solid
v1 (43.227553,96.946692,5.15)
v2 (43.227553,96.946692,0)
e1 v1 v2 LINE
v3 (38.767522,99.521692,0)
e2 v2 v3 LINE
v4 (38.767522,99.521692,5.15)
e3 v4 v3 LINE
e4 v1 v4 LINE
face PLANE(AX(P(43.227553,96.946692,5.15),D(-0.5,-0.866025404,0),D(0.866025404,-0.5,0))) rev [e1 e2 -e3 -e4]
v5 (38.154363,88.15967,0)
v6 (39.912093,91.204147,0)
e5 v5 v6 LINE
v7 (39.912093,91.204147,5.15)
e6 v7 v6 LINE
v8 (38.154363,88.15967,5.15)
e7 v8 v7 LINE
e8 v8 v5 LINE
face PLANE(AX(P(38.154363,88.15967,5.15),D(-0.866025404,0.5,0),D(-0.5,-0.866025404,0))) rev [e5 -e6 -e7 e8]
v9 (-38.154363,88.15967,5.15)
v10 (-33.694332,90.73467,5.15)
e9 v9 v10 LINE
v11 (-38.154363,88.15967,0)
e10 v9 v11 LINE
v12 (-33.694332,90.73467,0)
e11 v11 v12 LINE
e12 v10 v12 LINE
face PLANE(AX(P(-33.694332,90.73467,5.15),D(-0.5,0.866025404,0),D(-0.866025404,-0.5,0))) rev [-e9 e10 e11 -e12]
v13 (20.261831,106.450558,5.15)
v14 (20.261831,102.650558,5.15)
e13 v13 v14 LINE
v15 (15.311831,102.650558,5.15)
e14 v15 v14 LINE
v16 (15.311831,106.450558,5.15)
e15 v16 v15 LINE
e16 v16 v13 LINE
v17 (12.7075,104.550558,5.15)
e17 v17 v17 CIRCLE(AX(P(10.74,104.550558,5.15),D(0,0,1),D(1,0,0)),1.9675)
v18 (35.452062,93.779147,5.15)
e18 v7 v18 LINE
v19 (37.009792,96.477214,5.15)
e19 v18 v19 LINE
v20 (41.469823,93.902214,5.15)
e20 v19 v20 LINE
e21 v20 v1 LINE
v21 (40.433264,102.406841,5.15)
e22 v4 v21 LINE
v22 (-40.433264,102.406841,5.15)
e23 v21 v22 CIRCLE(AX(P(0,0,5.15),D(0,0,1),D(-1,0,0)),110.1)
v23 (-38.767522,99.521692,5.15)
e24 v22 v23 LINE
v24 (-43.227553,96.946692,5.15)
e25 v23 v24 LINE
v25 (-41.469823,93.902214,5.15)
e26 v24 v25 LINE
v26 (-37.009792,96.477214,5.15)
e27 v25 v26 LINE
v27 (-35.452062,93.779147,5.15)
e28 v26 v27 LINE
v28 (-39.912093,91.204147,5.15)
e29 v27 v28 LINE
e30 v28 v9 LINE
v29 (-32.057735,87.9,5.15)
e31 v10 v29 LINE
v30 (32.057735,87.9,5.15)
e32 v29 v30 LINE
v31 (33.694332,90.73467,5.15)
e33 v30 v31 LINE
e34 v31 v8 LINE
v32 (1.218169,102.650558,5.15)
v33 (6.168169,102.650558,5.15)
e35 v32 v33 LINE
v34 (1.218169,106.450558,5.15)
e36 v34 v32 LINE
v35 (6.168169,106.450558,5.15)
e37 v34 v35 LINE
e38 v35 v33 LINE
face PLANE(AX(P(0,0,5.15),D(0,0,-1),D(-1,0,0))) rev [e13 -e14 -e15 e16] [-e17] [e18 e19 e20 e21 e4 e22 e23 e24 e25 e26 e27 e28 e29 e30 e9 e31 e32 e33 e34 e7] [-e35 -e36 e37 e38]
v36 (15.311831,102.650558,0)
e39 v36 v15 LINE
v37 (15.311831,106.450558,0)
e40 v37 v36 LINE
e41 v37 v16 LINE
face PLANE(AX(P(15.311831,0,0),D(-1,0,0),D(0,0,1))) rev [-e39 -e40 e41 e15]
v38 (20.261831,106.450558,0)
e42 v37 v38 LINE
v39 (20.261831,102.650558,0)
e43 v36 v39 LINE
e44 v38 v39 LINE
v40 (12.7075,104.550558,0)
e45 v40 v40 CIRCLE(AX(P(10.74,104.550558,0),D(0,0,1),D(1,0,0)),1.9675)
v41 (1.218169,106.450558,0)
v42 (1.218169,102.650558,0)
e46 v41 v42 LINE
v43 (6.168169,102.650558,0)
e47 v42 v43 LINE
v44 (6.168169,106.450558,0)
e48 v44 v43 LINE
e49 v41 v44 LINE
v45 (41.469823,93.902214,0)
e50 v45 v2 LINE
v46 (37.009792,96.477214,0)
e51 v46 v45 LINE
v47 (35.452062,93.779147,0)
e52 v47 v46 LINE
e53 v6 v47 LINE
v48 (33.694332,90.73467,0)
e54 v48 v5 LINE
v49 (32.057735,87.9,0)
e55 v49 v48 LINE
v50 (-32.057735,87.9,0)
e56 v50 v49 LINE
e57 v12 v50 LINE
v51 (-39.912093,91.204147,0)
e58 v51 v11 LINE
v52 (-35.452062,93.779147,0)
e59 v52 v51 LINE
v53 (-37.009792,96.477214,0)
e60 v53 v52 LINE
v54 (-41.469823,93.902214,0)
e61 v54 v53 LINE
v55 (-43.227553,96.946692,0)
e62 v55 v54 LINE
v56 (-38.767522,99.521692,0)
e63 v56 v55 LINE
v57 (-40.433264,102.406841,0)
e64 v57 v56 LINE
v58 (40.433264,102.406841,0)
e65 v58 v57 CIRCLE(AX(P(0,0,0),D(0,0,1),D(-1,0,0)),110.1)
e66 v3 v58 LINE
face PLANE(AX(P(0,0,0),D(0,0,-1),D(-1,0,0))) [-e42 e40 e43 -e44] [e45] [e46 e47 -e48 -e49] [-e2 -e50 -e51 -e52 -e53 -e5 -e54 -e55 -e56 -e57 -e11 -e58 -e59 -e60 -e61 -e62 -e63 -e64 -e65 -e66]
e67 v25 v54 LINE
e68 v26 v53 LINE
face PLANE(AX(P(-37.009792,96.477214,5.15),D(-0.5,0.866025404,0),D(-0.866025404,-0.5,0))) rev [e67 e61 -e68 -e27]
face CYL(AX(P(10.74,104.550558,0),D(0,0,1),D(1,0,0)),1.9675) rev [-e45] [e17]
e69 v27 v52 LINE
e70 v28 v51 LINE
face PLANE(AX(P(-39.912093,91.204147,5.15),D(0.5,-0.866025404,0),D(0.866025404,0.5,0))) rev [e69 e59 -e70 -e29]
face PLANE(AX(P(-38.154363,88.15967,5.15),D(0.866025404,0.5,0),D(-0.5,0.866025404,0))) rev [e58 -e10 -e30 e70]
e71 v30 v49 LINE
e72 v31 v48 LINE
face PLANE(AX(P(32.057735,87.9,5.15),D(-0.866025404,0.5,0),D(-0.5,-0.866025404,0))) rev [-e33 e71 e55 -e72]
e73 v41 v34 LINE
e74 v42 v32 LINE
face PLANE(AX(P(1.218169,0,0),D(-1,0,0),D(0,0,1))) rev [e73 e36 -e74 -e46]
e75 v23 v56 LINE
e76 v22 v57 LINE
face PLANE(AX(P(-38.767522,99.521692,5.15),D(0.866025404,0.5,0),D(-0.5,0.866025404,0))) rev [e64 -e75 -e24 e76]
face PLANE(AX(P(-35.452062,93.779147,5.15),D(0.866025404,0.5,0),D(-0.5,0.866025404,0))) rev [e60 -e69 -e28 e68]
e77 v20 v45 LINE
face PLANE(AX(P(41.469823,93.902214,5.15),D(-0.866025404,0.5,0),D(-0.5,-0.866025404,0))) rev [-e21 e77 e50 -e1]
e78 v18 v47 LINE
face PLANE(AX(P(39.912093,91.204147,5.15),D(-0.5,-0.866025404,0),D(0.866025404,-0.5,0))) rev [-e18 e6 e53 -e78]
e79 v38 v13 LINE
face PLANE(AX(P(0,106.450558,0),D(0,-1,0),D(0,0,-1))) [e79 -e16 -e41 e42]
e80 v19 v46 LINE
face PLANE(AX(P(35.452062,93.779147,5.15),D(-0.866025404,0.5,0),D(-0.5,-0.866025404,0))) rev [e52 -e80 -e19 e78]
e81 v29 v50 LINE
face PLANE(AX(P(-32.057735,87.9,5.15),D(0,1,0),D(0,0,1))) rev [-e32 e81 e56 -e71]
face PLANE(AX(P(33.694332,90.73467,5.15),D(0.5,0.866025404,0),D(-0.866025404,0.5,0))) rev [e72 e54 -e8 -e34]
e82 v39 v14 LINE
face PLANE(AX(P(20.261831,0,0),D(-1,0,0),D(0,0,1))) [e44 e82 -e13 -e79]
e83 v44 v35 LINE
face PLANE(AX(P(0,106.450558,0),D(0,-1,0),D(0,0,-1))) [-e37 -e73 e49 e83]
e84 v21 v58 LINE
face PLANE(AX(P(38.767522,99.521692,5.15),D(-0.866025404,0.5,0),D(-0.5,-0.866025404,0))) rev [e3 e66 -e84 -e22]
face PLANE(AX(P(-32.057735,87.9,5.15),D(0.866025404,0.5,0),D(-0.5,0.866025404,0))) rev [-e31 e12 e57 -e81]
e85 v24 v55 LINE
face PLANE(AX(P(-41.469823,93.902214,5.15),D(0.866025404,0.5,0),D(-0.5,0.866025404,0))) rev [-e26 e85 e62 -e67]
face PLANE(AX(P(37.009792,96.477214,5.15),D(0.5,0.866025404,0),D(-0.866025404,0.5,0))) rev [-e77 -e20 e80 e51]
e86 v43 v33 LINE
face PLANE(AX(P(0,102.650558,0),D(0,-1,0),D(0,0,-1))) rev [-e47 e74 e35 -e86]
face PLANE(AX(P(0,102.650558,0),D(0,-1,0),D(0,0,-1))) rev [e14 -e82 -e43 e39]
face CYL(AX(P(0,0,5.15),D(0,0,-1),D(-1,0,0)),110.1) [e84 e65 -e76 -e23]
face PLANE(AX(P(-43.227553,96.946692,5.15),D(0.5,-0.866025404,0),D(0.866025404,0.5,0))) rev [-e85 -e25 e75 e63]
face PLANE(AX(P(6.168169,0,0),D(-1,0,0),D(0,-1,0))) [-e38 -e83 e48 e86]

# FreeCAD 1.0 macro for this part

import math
import FreeCAD as App
import Part
import Sketcher
Q = App.Units.Quantity


def add_polygon(sketch, points):
    """Adds a closed chain of lines whose ends are joined by coincident constraints."""
    first, n = sketch.GeometryCount, len(points)
    for a, b in zip(points, points[1:] + points[:1]):
        sketch.addGeometry(Part.LineSegment(App.Vector(*a, 0), App.Vector(*b, 0)), False)
    for i in range(n):
        sketch.addConstraint(Sketcher.Constraint("Coincident", first + i, 2, first + (i + 1) % n, 1))

doc = App.newDocument("Part")
body = doc.addObject("PartDesign::Body", "Body")

# Sketch on XY plane
sketch1 = body.newObject("Sketcher::SketchObject", "Sketch")
sketch1.AttachmentSupport = (doc.getObject("XY_Plane"), [""])
sketch1.MapMode = "FlatFace"
sketch1.addGeometry(Part.LineSegment(App.Vector(-32.1, 87.9, 0), App.Vector(32.1, 87.9, 0)), False)
sketch1.addGeometry(Part.LineSegment(App.Vector(32.1, 87.9, 0), App.Vector(33.7, 90.7, 0)), False)
sketch1.addGeometry(Part.LineSegment(App.Vector(33.7, 90.7, 0), App.Vector(38.2, 88.2, 0)), False)
sketch1.addGeometry(Part.LineSegment(App.Vector(38.2, 88.2, 0), App.Vector(39.9, 91.2, 0)), False)
sketch1.addGeometry(Part.LineSegment(App.Vector(39.9, 91.2, 0), App.Vector(35.5, 93.8, 0)), False)
sketch1.addGeometry(Part.LineSegment(App.Vector(35.5, 93.8, 0), App.Vector(37, 96.5, 0)), False)
sketch1.addGeometry(Part.LineSegment(App.Vector(37, 96.5, 0), App.Vector(41.5, 93.9, 0)), False)
sketch1.addGeometry(Part.LineSegment(App.Vector(41.5, 93.9, 0), App.Vector(43.2, 96.9, 0)), False)
sketch1.addGeometry(Part.LineSegment(App.Vector(43.2, 96.9, 0), App.Vector(38.8, 99.5, 0)), False)
sketch1.addGeometry(Part.LineSegment(App.Vector(38.8, 99.5, 0), App.Vector(40.4, 102.4, 0)), False)
sketch1.addGeometry(Part.ArcOfCircle(Part.Circle(App.Vector(0, 0, 0), App.Vector(0, 0, 1), 110.1), math.radians(68), math.radians(112)), False)
sketch1.addGeometry(Part.LineSegment(App.Vector(-40.4, 102.4, 0), App.Vector(-38.8, 99.5, 0)), False)
sketch1.addGeometry(Part.LineSegment(App.Vector(-38.8, 99.5, 0), App.Vector(-43.2, 96.9, 0)), False)
sketch1.addGeometry(Part.LineSegment(App.Vector(-43.2, 96.9, 0), App.Vector(-41.5, 93.9, 0)), False)
sketch1.addGeometry(Part.LineSegment(App.Vector(-41.5, 93.9, 0), App.Vector(-37, 96.5, 0)), False)
sketch1.addGeometry(Part.LineSegment(App.Vector(-37, 96.5, 0), App.Vector(-35.5, 93.8, 0)), False)
sketch1.addGeometry(Part.LineSegment(App.Vector(-35.5, 93.8, 0), App.Vector(-39.9, 91.2, 0)), False)
sketch1.addGeometry(Part.LineSegment(App.Vector(-39.9, 91.2, 0), App.Vector(-38.2, 88.2, 0)), False)
sketch1.addGeometry(Part.LineSegment(App.Vector(-38.2, 88.2, 0), App.Vector(-33.7, 90.7, 0)), False)
sketch1.addGeometry(Part.LineSegment(App.Vector(-33.7, 90.7, 0), App.Vector(-32.1, 87.9, 0)), False)
sketch1.addConstraint(Sketcher.Constraint("Coincident", 0, 2, 1, 1))
sketch1.addConstraint(Sketcher.Constraint("Coincident", 1, 2, 2, 1))
sketch1.addConstraint(Sketcher.Constraint("Coincident", 2, 2, 3, 1))
sketch1.addConstraint(Sketcher.Constraint("Coincident", 3, 2, 4, 1))
sketch1.addConstraint(Sketcher.Constraint("Coincident", 4, 2, 5, 1))
sketch1.addConstraint(Sketcher.Constraint("Coincident", 5, 2, 6, 1))
sketch1.addConstraint(Sketcher.Constraint("Coincident", 6, 2, 7, 1))
sketch1.addConstraint(Sketcher.Constraint("Coincident", 7, 2, 8, 1))
sketch1.addConstraint(Sketcher.Constraint("Coincident", 8, 2, 9, 1))
sketch1.addConstraint(Sketcher.Constraint("Coincident", 9, 2, 10, 1))
sketch1.addConstraint(Sketcher.Constraint("Coincident", 10, 2, 11, 1))
sketch1.addConstraint(Sketcher.Constraint("Coincident", 11, 2, 12, 1))
sketch1.addConstraint(Sketcher.Constraint("Coincident", 12, 2, 13, 1))
sketch1.addConstraint(Sketcher.Constraint("Coincident", 13, 2, 14, 1))
sketch1.addConstraint(Sketcher.Constraint("Coincident", 14, 2, 15, 1))
sketch1.addConstraint(Sketcher.Constraint("Coincident", 15, 2, 16, 1))
sketch1.addConstraint(Sketcher.Constraint("Coincident", 16, 2, 17, 1))
sketch1.addConstraint(Sketcher.Constraint("Coincident", 17, 2, 18, 1))
sketch1.addConstraint(Sketcher.Constraint("Coincident", 18, 2, 19, 1))
sketch1.addConstraint(Sketcher.Constraint("Coincident", 19, 2, 0, 1))
sketch1.addConstraint(Sketcher.Constraint("Horizontal", 0))
sketch1.addConstraint(Sketcher.Constraint("Coincident", 10, 3, -1, 1))
sketch1.addConstraint(Sketcher.Constraint("Symmetric", 8, 2, 11, 2, -2))
sketch1.addConstraint(Sketcher.Constraint("Symmetric", 7, 2, 12, 2, -2))
sketch1.addConstraint(Sketcher.Constraint("Symmetric", 6, 2, 13, 2, -2))
sketch1.addConstraint(Sketcher.Constraint("Symmetric", 5, 2, 14, 2, -2))
sketch1.addConstraint(Sketcher.Constraint("Symmetric", 4, 2, 15, 2, -2))
sketch1.addConstraint(Sketcher.Constraint("Symmetric", 3, 2, 16, 2, -2))
sketch1.addConstraint(Sketcher.Constraint("Symmetric", 2, 2, 17, 2, -2))
sketch1.addConstraint(Sketcher.Constraint("Symmetric", 1, 2, 18, 2, -2))
sketch1.addConstraint(Sketcher.Constraint("Perpendicular", 1, 2))
sketch1.addConstraint(Sketcher.Constraint("Perpendicular", 2, 3))
sketch1.addConstraint(Sketcher.Constraint("Perpendicular", 3, 4))
sketch1.addConstraint(Sketcher.Constraint("Perpendicular", 4, 5))
sketch1.addConstraint(Sketcher.Constraint("Perpendicular", 5, 6))
sketch1.addConstraint(Sketcher.Constraint("Perpendicular", 6, 7))
sketch1.addConstraint(Sketcher.Constraint("Perpendicular", 7, 8))
sketch1.addConstraint(Sketcher.Constraint("Perpendicular", 8, 9))
sketch1.addConstraint(Sketcher.Constraint("Perpendicular", 11, 12))
sketch1.addConstraint(Sketcher.Constraint("Perpendicular", 18, 19))
sketch1.addConstraint(Sketcher.Constraint("Equal", 2, 4))
sketch1.addConstraint(Sketcher.Constraint("Equal", 4, 6))
sketch1.addConstraint(Sketcher.Constraint("Equal", 3, 7))
sketch1.addConstraint(Sketcher.Constraint("Equal", 6, 8))
sketch1.addConstraint(Sketcher.Constraint("Radius", 10, Q("110.1 mm")))
sketch1.addConstraint(Sketcher.Constraint("Angle", 1, Q("60 deg")))
sketch1.addConstraint(Sketcher.Constraint("DistanceY", -1, 1, 0, 2, Q("87.9 mm")))
sketch1.addConstraint(Sketcher.Constraint("Distance", 2, Q("5.15 mm")))
sketch1.addConstraint(Sketcher.Constraint("DistanceX", 10, 2, 0, 2, Q("72.490999 mm")))
sketch1.addConstraint(Sketcher.Constraint("DistanceX", 4, 2, 2, 2, Q("2.702301 mm")))
sketch1.addConstraint(Sketcher.Constraint("DistanceX", 5, 2, 3, 2, Q("2.902301 mm")))
sketch1.addConstraint(Sketcher.Constraint("DistanceX", 4, 2, 9, 2, Q("4.981202 mm")))
pad1 = body.newObject("PartDesign::Pad", "Pad")
pad1.Profile = sketch1
pad1.Length = 5.15

# Sketch on XY plane
sketch2 = body.newObject("Sketcher::SketchObject", "Sketch001")
sketch2.AttachmentSupport = (doc.getObject("XY_Plane"), [""])
sketch2.MapMode = "FlatFace"
sketch2.AttachmentOffset = App.Placement(App.Vector(0, 0, 5.15), App.Rotation())
sketch2.addGeometry(Part.Circle(App.Vector(10.7, 104.6, 0), App.Vector(0, 0, 1), 2), False)  # 0
add_polygon(sketch2, [(15.3, 106.5), (15.3, 102.7), (20.3, 102.7), (20.3, 106.5)])  # lines 1-4
add_polygon(sketch2, [(1.2, 106.5), (1.2, 102.7), (6.2, 102.7), (6.2, 106.5)])  # lines 5-8
sketch2.addConstraint(Sketcher.Constraint("Vertical", 1))
sketch2.addConstraint(Sketcher.Constraint("Horizontal", 2))
sketch2.addConstraint(Sketcher.Constraint("Vertical", 3))
sketch2.addConstraint(Sketcher.Constraint("Horizontal", 4))
sketch2.addConstraint(Sketcher.Constraint("Vertical", 5))
sketch2.addConstraint(Sketcher.Constraint("Horizontal", 6))
sketch2.addConstraint(Sketcher.Constraint("Vertical", 7))
sketch2.addConstraint(Sketcher.Constraint("Horizontal", 8))
sketch2.addConstraint(Sketcher.Constraint("Horizontal", 2, 2, 5, 2))
sketch2.addConstraint(Sketcher.Constraint("Horizontal", 4, 2, 7, 2))
sketch2.addConstraint(Sketcher.Constraint("Equal", 4, 6))
sketch2.addConstraint(Sketcher.Constraint("Diameter", 0, Q("3.935 mm")))
sketch2.addConstraint(Sketcher.Constraint("DistanceY", 1, 2, 1, 1, Q("3.8 mm")))
sketch2.addConstraint(Sketcher.Constraint("DistanceX", 2, 1, 2, 2, Q("4.95 mm")))
sketch2.addConstraint(Sketcher.Constraint("DistanceY", 1, 2, 0, 3, Q("1.9 mm")))
sketch2.addConstraint(Sketcher.Constraint("DistanceX", -1, 1, 0, 3, Q("10.74 mm")))
sketch2.addConstraint(Sketcher.Constraint("DistanceY", -1, 1, 0, 3, Q("104.550558 mm")))
sketch2.addConstraint(Sketcher.Constraint("DistanceX", -1, 1, 1, 2, Q("15.311831 mm")))
sketch2.addConstraint(Sketcher.Constraint("DistanceX", -1, 1, 5, 2, Q("1.218169 mm")))
pocket1 = body.newObject("PartDesign::Pocket", "Pocket")
pocket1.Profile = sketch2
pocket1.Type = "ThroughAll"

doc.recompute()
